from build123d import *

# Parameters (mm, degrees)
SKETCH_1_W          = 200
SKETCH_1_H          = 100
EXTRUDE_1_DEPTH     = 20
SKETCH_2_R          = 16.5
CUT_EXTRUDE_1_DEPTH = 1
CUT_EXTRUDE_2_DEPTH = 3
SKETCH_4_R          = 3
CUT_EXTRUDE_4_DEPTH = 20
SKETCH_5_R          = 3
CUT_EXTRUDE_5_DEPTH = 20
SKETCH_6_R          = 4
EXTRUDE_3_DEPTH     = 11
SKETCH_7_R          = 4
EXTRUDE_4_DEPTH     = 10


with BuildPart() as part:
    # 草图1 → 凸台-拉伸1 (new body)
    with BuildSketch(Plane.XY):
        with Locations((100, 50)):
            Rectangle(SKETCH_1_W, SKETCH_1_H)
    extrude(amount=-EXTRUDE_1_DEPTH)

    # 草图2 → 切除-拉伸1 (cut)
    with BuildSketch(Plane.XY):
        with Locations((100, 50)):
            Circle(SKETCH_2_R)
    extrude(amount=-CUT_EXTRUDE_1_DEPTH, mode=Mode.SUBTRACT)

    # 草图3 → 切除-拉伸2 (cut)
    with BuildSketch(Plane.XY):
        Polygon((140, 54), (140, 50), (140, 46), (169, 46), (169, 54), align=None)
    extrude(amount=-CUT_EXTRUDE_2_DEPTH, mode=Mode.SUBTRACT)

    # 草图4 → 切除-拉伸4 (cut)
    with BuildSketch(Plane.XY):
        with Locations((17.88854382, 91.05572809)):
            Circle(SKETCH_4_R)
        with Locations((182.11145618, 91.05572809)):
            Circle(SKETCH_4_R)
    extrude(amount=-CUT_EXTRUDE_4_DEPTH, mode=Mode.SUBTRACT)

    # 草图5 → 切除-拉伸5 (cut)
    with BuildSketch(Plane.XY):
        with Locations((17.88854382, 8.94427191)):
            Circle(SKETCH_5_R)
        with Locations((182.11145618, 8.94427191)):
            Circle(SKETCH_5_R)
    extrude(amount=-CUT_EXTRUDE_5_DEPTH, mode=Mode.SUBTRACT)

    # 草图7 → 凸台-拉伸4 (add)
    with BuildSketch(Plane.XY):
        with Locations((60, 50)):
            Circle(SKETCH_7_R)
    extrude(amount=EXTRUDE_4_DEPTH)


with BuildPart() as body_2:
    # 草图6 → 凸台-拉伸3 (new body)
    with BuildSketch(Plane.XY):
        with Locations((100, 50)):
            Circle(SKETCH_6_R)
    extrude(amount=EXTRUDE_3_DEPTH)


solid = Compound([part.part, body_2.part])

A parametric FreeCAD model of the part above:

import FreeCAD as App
import Part
import Sketcher

doc = App.newDocument("Part")
params = doc.addObject("Spreadsheet::Sheet", "Params")
for row, (alias, value) in enumerate([
    ("sketch1_width", "200 mm"),
    ("sketch1_height", "100 mm"),
    ("pad1_length", "20 mm"),
    ("sketch2_diameter", "33 mm"),
    ("pocket1_length", "1 mm"),
    ("sketch3_width", "29 mm"),
    ("sketch3_height", "8 mm"),
    ("pocket2_length", "3 mm"),
    ("sketch4_diameter", "6 mm"),
    ("pocket3_length", "20 mm"),
    ("sketch5_diameter", "6 mm"),
    ("pocket4_length", "20 mm"),
    ("sketch6_diameter", "8 mm"),
    ("pad2_length", "10 mm"),
    ("sketch7_diameter", "8 mm"),
    ("pad3_length", "11 mm"),
], start=1):
    params.set(f"A{row}", alias)
    params.set(f"B{row}", "=" + value)
    params.setAlias(f"B{row}", alias)

body = doc.addObject("PartDesign::Body", "Body")

# Sketch on XY plane
sketch1 = doc.addObject("Sketcher::SketchObject", "Sketch")
body.addObject(sketch1)
sketch1.AttachmentSupport = (doc.XY_Plane, [""])
sketch1.MapMode = "FlatFace"
sketch1.addGeometry([
    Part.LineSegment(App.Vector(0, 100, 0), App.Vector(0, 0, 0)),
    Part.LineSegment(App.Vector(0, 0, 0), App.Vector(200, 0, 0)),
    Part.LineSegment(App.Vector(200, 0, 0), App.Vector(200, 100, 0)),
    Part.LineSegment(App.Vector(200, 100, 0), App.Vector(0, 100, 0)),
], False)
sketch1.addConstraint([
    Sketcher.Constraint("Coincident", 0, 2, 1, 1),
    Sketcher.Constraint("Coincident", 1, 2, 2, 1),
    Sketcher.Constraint("Coincident", 2, 2, 3, 1),
    Sketcher.Constraint("Coincident", 3, 2, 0, 1),
    Sketcher.Constraint("Vertical", 0),
    Sketcher.Constraint("Horizontal", 1),
    Sketcher.Constraint("Vertical", 2),
    Sketcher.Constraint("Horizontal", 3),
    Sketcher.Constraint("Coincident", 0, 2, -1, 1),
    Sketcher.Constraint("DistanceX", 1, 1, 1, 2, 200.0),
    Sketcher.Constraint("DistanceY", 0, 2, 0, 1, 100.0),
])
sketch1.setExpression("Constraints[9]", "Params.sketch1_width")
sketch1.setExpression("Constraints[10]", "Params.sketch1_height")
pad1 = doc.addObject("PartDesign::Pad", "Pad")
body.addObject(pad1)
pad1.Profile = sketch1
pad1.setExpression("Length", "Params.pad1_length")
pad1.Reversed = True

# Sketch on XY plane
sketch2 = doc.addObject("Sketcher::SketchObject", "Sketch001")
body.addObject(sketch2)
sketch2.AttachmentSupport = (doc.XY_Plane, [""])
sketch2.MapMode = "FlatFace"
sketch2.addGeometry(Part.Circle(App.Vector(100, 50, 0), App.Vector(0, 0, 1), 16), False)
sketch2.addConstraint([
    Sketcher.Constraint("Diameter", 0, 33.0),
    Sketcher.Constraint("DistanceX", -1, 1, 0, 3, 100.0),
    Sketcher.Constraint("DistanceY", -1, 1, 0, 3, 50.0),
])
sketch2.setExpression("Constraints[0]", "Params.sketch2_diameter")
pocket1 = doc.addObject("PartDesign::Pocket", "Pocket")
body.addObject(pocket1)
pocket1.Profile = sketch2
pocket1.setExpression("Length", "Params.pocket1_length")

# Sketch on XY plane
sketch3 = doc.addObject("Sketcher::SketchObject", "Sketch002")
body.addObject(sketch3)
sketch3.AttachmentSupport = (doc.XY_Plane, [""])
sketch3.MapMode = "FlatFace"
sketch3.addGeometry([
    Part.LineSegment(App.Vector(140, 54, 0), App.Vector(140, 46, 0)),
    Part.LineSegment(App.Vector(140, 46, 0), App.Vector(169, 46, 0)),
    Part.LineSegment(App.Vector(169, 46, 0), App.Vector(169, 54, 0)),
    Part.LineSegment(App.Vector(169, 54, 0), App.Vector(140, 54, 0)),
], False)
sketch3.addConstraint([
    Sketcher.Constraint("Coincident", 0, 2, 1, 1),
    Sketcher.Constraint("Coincident", 1, 2, 2, 1),
    Sketcher.Constraint("Coincident", 2, 2, 3, 1),
    Sketcher.Constraint("Coincident", 3, 2, 0, 1),
    Sketcher.Constraint("Vertical", 0),
    Sketcher.Constraint("Horizontal", 1),
    Sketcher.Constraint("Vertical", 2),
    Sketcher.Constraint("Horizontal", 3),
    Sketcher.Constraint("DistanceX", 1, 1, 1, 2, 29.0),
    Sketcher.Constraint("DistanceY", 0, 2, 0, 1, 8.0),
    Sketcher.Constraint("DistanceX", -1, 1, 0, 2, 140.0),
    Sketcher.Constraint("DistanceY", -1, 1, 0, 2, 46.0),
])
sketch3.setExpression("Constraints[8]", "Params.sketch3_width")
sketch3.setExpression("Constraints[9]", "Params.sketch3_height")
pocket2 = doc.addObject("PartDesign::Pocket", "Pocket001")
body.addObject(pocket2)
pocket2.Profile = sketch3
pocket2.setExpression("Length", "Params.pocket2_length")

# Sketch on XY plane
sketch4 = doc.addObject("Sketcher::SketchObject", "Sketch003")
body.addObject(sketch4)
sketch4.AttachmentSupport = (doc.XY_Plane, [""])
sketch4.MapMode = "FlatFace"
sketch4.addGeometry([
    Part.Circle(App.Vector(17.9, 91.1, 0), App.Vector(0, 0, 1), 3),
    Part.Circle(App.Vector(182.1, 91.1, 0), App.Vector(0, 0, 1), 3),
], False)
sketch4.addConstraint([
    Sketcher.Constraint("Equal", 0, 1),
    Sketcher.Constraint("Horizontal", 0, 3, 1, 3),
    Sketcher.Constraint("Diameter", 0, 6.0),
    Sketcher.Constraint("DistanceY", -1, 1, 0, 3, 91.055728),
    Sketcher.Constraint("DistanceX", -1, 1, 0, 3, 17.888544),
    Sketcher.Constraint("DistanceX", -1, 1, 1, 3, 182.111456),
])
sketch4.setExpression("Constraints[2]", "Params.sketch4_diameter")
pocket3 = doc.addObject("PartDesign::Pocket", "Pocket002")
body.addObject(pocket3)
pocket3.Profile = sketch4
pocket3.setExpression("Length", "Params.pocket3_length")

# Sketch on XY plane
sketch5 = doc.addObject("Sketcher::SketchObject", "Sketch004")
body.addObject(sketch5)
sketch5.AttachmentSupport = (doc.XY_Plane, [""])
sketch5.MapMode = "FlatFace"
sketch5.addGeometry([
    Part.Circle(App.Vector(17.9, 8.9, 0), App.Vector(0, 0, 1), 3),
    Part.Circle(App.Vector(182.1, 8.9, 0), App.Vector(0, 0, 1), 3),
], False)
sketch5.addConstraint([
    Sketcher.Constraint("Equal", 0, 1),
    Sketcher.Constraint("Horizontal", 0, 3, 1, 3),
    Sketcher.Constraint("Diameter", 0, 6.0),
    Sketcher.Constraint("DistanceY", -1, 1, 0, 3, 8.944272),
    Sketcher.Constraint("DistanceX", -1, 1, 0, 3, 17.888544),
    Sketcher.Constraint("DistanceX", -1, 1, 1, 3, 182.111456),
])
sketch5.setExpression("Constraints[2]", "Params.sketch5_diameter")
pocket4 = doc.addObject("PartDesign::Pocket", "Pocket003")
body.addObject(pocket4)
pocket4.Profile = sketch5
pocket4.setExpression("Length", "Params.pocket4_length")

# Sketch on XY plane
sketch6 = doc.addObject("Sketcher::SketchObject", "Sketch005")
body.addObject(sketch6)
sketch6.AttachmentSupport = (doc.XY_Plane, [""])
sketch6.MapMode = "FlatFace"
sketch6.addGeometry(Part.Circle(App.Vector(60, 50, 0), App.Vector(0, 0, 1), 4), False)
sketch6.addConstraint([
    Sketcher.Constraint("Diameter", 0, 8.0),
    Sketcher.Constraint("DistanceX", -1, 1, 0, 3, 60.0),
    Sketcher.Constraint("DistanceY", -1, 1, 0, 3, 50.0),
])
sketch6.setExpression("Constraints[0]", "Params.sketch6_diameter")
pad2 = doc.addObject("PartDesign::Pad", "Pad001")
body.addObject(pad2)
pad2.Profile = sketch6
pad2.setExpression("Length", "Params.pad2_length")
body2 = doc.addObject("PartDesign::Body", "Body001")

# Sketch on XY plane
sketch7 = doc.addObject("Sketcher::SketchObject", "Sketch006")
body2.addObject(sketch7)
sketch7.AttachmentSupport = (doc.getObject("XY_Plane001"), [""])
sketch7.MapMode = "FlatFace"
sketch7.addGeometry(Part.Circle(App.Vector(100, 50, 0), App.Vector(0, 0, 1), 4), False)
sketch7.addConstraint([
    Sketcher.Constraint("Diameter", 0, 8.0),
    Sketcher.Constraint("DistanceX", -1, 1, 0, 3, 100.0),
    Sketcher.Constraint("DistanceY", -1, 1, 0, 3, 50.0),
])
sketch7.setExpression("Constraints[0]", "Params.sketch7_diameter")
pad3 = doc.addObject("PartDesign::Pad", "Pad002")
body2.addObject(pad3)
pad3.Profile = sketch7
pad3.setExpression("Length", "Params.pad3_length")

doc.recompute()
